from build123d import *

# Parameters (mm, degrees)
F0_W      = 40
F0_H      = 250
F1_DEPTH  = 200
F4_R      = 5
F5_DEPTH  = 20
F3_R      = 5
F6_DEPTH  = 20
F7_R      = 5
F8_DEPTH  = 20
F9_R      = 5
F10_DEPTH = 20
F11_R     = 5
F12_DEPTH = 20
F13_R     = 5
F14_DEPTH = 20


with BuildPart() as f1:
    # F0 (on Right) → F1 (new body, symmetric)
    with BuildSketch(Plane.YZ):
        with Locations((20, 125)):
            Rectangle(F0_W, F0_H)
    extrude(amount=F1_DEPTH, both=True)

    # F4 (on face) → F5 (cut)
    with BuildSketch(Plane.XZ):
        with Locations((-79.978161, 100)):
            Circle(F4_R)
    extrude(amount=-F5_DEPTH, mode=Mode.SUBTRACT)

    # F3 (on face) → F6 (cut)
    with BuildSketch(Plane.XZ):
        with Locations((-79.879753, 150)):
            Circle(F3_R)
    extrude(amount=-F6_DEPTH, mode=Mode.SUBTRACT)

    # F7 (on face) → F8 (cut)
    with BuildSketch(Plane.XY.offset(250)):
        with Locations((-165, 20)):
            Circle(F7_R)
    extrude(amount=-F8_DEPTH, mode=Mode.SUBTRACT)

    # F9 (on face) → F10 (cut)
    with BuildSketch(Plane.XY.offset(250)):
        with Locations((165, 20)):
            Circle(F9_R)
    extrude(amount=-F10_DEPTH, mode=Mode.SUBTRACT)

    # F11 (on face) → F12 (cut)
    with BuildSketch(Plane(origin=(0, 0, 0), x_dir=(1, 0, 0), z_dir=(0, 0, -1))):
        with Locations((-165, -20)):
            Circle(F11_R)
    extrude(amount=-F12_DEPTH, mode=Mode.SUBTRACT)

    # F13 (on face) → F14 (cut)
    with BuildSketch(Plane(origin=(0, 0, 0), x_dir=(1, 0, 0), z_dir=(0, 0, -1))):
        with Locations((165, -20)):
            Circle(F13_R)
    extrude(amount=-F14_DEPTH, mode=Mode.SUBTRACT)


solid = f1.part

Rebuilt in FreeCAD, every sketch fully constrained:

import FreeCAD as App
import Part
import Sketcher

V = App.Vector


def add_polygon(sketch, points):
    """Adds a closed chain of lines whose ends are joined by coincident constraints."""
    first, n = sketch.GeometryCount, len(points)
    for a, b in zip(points, points[1:] + points[:1]):
        sketch.addGeometry(Part.LineSegment(App.Vector(*a, 0), App.Vector(*b, 0)), False)
    for i in range(n):
        sketch.addConstraint(Sketcher.Constraint("Coincident", first + i, 2, first + (i + 1) % n, 1))

doc = App.newDocument("Part")
body = doc.addObject("PartDesign::Body", "Body")

# Sketch on YZ plane
sketch1 = body.newObject("Sketcher::SketchObject", "Sketch")
sketch1.AttachmentSupport = (doc.getObject("YZ_Plane"), [""])
sketch1.MapMode = "FlatFace"
add_polygon(sketch1, [(0, 250), (0, 0), (40, 0), (40, 250)])  # lines 0-3
sketch1.addConstraint([
    Sketcher.Constraint("Vertical", 0),
    Sketcher.Constraint("Horizontal", 1),
    Sketcher.Constraint("Vertical", 2),
    Sketcher.Constraint("Horizontal", 3),
    Sketcher.Constraint("Coincident", 0, 2, -1, 1),
    Sketcher.Constraint("DistanceX", 1, 1, 1, 2, 40.0),
    Sketcher.Constraint("DistanceY", 0, 2, 0, 1, 250.0),
])
pad1 = body.newObject("PartDesign::Pad", "Pad")
pad1.Profile = sketch1
pad1.Length = 400
pad1.Midplane = True

# Sketch on XZ plane
sketch2 = body.newObject("Sketcher::SketchObject", "Sketch001")
sketch2.AttachmentSupport = (doc.getObject("XZ_Plane"), [""])
sketch2.MapMode = "FlatFace"
sketch2.addGeometry(Part.Circle(V(-80, 100, 0), V(0, 0, 1), 5), False)
sketch2.addConstraint([
    Sketcher.Constraint("Diameter", 0, 10.0),
    Sketcher.Constraint("DistanceY", -1, 1, 0, 3, 100.0),
    Sketcher.Constraint("DistanceX", 0, 3, -1, 1, 79.978161),
])
pocket1 = body.newObject("PartDesign::Pocket", "Pocket")
pocket1.Profile = sketch2
pocket1.Length = 20

# Sketch on XZ plane
sketch3 = body.newObject("Sketcher::SketchObject", "Sketch002")
sketch3.AttachmentSupport = (doc.getObject("XZ_Plane"), [""])
sketch3.MapMode = "FlatFace"
sketch3.addGeometry(Part.Circle(V(-80, 150, 0), V(0, 0, 1), 5), False)
sketch3.addConstraint([
    Sketcher.Constraint("Diameter", 0, 10.0),
    Sketcher.Constraint("DistanceY", -1, 1, 0, 3, 150.0),
    Sketcher.Constraint("DistanceX", 0, 3, -1, 1, 79.879753),
])
pocket2 = body.newObject("PartDesign::Pocket", "Pocket001")
pocket2.Profile = sketch3
pocket2.Length = 20

# Sketch on XY plane
sketch4 = body.newObject("Sketcher::SketchObject", "Sketch003")
sketch4.AttachmentSupport = (doc.getObject("XY_Plane"), [""])
sketch4.MapMode = "FlatFace"
sketch4.AttachmentOffset = App.Placement(V(0, 0, 250), App.Rotation())
sketch4.addGeometry(Part.Circle(V(-165, 20, 0), V(0, 0, 1), 5), False)
sketch4.addConstraint([
    Sketcher.Constraint("Diameter", 0, 10.0),
    Sketcher.Constraint("DistanceX", 0, 3, -1, 1, 165.0),
    Sketcher.Constraint("DistanceY", -1, 1, 0, 3, 20.0),
])
pocket3 = body.newObject("PartDesign::Pocket", "Pocket002")
pocket3.Profile = sketch4
pocket3.Length = 20

# Sketch on XY plane
sketch5 = body.newObject("Sketcher::SketchObject", "Sketch004")
sketch5.AttachmentSupport = (doc.getObject("XY_Plane"), [""])
sketch5.MapMode = "FlatFace"
sketch5.AttachmentOffset = App.Placement(V(0, 0, 250), App.Rotation())
sketch5.addGeometry(Part.Circle(V(165, 20, 0), V(0, 0, 1), 5), False)
sketch5.addConstraint([
    Sketcher.Constraint("Diameter", 0, 10.0),
    Sketcher.Constraint("DistanceX", -1, 1, 0, 3, 165.0),
    Sketcher.Constraint("DistanceY", -1, 1, 0, 3, 20.0),
])
pocket4 = body.newObject("PartDesign::Pocket", "Pocket003")
pocket4.Profile = sketch5
pocket4.Length = 20

# Sketch on XY plane
sketch6 = body.newObject("Sketcher::SketchObject", "Sketch005")
sketch6.AttachmentSupport = (doc.getObject("XY_Plane"), [""])
sketch6.MapMode = "FlatFace"
sketch6.addGeometry(Part.Circle(V(-165, 20, 0), V(0, 0, 1), 5), False)
sketch6.addConstraint([
    Sketcher.Constraint("Diameter", 0, 10.0),
    Sketcher.Constraint("DistanceX", 0, 3, -1, 1, 165.0),
    Sketcher.Constraint("DistanceY", -1, 1, 0, 3, 20.0),
])
pocket5 = body.newObject("PartDesign::Pocket", "Pocket004")
pocket5.Profile = sketch6
pocket5.Length = 20
pocket5.Reversed = True

# Sketch on XY plane
sketch7 = body.newObject("Sketcher::SketchObject", "Sketch006")
sketch7.AttachmentSupport = (doc.getObject("XY_Plane"), [""])
sketch7.MapMode = "FlatFace"
sketch7.addGeometry(Part.Circle(V(165, 20, 0), V(0, 0, 1), 5), False)
sketch7.addConstraint([
    Sketcher.Constraint("Diameter", 0, 10.0),
    Sketcher.Constraint("DistanceX", -1, 1, 0, 3, 165.0),
    Sketcher.Constraint("DistanceY", -1, 1, 0, 3, 20.0),
])
pocket6 = body.newObject("PartDesign::Pocket", "Pocket005")
pocket6.Profile = sketch7
pocket6.Length = 20
pocket6.Reversed = True

doc.recompute()
